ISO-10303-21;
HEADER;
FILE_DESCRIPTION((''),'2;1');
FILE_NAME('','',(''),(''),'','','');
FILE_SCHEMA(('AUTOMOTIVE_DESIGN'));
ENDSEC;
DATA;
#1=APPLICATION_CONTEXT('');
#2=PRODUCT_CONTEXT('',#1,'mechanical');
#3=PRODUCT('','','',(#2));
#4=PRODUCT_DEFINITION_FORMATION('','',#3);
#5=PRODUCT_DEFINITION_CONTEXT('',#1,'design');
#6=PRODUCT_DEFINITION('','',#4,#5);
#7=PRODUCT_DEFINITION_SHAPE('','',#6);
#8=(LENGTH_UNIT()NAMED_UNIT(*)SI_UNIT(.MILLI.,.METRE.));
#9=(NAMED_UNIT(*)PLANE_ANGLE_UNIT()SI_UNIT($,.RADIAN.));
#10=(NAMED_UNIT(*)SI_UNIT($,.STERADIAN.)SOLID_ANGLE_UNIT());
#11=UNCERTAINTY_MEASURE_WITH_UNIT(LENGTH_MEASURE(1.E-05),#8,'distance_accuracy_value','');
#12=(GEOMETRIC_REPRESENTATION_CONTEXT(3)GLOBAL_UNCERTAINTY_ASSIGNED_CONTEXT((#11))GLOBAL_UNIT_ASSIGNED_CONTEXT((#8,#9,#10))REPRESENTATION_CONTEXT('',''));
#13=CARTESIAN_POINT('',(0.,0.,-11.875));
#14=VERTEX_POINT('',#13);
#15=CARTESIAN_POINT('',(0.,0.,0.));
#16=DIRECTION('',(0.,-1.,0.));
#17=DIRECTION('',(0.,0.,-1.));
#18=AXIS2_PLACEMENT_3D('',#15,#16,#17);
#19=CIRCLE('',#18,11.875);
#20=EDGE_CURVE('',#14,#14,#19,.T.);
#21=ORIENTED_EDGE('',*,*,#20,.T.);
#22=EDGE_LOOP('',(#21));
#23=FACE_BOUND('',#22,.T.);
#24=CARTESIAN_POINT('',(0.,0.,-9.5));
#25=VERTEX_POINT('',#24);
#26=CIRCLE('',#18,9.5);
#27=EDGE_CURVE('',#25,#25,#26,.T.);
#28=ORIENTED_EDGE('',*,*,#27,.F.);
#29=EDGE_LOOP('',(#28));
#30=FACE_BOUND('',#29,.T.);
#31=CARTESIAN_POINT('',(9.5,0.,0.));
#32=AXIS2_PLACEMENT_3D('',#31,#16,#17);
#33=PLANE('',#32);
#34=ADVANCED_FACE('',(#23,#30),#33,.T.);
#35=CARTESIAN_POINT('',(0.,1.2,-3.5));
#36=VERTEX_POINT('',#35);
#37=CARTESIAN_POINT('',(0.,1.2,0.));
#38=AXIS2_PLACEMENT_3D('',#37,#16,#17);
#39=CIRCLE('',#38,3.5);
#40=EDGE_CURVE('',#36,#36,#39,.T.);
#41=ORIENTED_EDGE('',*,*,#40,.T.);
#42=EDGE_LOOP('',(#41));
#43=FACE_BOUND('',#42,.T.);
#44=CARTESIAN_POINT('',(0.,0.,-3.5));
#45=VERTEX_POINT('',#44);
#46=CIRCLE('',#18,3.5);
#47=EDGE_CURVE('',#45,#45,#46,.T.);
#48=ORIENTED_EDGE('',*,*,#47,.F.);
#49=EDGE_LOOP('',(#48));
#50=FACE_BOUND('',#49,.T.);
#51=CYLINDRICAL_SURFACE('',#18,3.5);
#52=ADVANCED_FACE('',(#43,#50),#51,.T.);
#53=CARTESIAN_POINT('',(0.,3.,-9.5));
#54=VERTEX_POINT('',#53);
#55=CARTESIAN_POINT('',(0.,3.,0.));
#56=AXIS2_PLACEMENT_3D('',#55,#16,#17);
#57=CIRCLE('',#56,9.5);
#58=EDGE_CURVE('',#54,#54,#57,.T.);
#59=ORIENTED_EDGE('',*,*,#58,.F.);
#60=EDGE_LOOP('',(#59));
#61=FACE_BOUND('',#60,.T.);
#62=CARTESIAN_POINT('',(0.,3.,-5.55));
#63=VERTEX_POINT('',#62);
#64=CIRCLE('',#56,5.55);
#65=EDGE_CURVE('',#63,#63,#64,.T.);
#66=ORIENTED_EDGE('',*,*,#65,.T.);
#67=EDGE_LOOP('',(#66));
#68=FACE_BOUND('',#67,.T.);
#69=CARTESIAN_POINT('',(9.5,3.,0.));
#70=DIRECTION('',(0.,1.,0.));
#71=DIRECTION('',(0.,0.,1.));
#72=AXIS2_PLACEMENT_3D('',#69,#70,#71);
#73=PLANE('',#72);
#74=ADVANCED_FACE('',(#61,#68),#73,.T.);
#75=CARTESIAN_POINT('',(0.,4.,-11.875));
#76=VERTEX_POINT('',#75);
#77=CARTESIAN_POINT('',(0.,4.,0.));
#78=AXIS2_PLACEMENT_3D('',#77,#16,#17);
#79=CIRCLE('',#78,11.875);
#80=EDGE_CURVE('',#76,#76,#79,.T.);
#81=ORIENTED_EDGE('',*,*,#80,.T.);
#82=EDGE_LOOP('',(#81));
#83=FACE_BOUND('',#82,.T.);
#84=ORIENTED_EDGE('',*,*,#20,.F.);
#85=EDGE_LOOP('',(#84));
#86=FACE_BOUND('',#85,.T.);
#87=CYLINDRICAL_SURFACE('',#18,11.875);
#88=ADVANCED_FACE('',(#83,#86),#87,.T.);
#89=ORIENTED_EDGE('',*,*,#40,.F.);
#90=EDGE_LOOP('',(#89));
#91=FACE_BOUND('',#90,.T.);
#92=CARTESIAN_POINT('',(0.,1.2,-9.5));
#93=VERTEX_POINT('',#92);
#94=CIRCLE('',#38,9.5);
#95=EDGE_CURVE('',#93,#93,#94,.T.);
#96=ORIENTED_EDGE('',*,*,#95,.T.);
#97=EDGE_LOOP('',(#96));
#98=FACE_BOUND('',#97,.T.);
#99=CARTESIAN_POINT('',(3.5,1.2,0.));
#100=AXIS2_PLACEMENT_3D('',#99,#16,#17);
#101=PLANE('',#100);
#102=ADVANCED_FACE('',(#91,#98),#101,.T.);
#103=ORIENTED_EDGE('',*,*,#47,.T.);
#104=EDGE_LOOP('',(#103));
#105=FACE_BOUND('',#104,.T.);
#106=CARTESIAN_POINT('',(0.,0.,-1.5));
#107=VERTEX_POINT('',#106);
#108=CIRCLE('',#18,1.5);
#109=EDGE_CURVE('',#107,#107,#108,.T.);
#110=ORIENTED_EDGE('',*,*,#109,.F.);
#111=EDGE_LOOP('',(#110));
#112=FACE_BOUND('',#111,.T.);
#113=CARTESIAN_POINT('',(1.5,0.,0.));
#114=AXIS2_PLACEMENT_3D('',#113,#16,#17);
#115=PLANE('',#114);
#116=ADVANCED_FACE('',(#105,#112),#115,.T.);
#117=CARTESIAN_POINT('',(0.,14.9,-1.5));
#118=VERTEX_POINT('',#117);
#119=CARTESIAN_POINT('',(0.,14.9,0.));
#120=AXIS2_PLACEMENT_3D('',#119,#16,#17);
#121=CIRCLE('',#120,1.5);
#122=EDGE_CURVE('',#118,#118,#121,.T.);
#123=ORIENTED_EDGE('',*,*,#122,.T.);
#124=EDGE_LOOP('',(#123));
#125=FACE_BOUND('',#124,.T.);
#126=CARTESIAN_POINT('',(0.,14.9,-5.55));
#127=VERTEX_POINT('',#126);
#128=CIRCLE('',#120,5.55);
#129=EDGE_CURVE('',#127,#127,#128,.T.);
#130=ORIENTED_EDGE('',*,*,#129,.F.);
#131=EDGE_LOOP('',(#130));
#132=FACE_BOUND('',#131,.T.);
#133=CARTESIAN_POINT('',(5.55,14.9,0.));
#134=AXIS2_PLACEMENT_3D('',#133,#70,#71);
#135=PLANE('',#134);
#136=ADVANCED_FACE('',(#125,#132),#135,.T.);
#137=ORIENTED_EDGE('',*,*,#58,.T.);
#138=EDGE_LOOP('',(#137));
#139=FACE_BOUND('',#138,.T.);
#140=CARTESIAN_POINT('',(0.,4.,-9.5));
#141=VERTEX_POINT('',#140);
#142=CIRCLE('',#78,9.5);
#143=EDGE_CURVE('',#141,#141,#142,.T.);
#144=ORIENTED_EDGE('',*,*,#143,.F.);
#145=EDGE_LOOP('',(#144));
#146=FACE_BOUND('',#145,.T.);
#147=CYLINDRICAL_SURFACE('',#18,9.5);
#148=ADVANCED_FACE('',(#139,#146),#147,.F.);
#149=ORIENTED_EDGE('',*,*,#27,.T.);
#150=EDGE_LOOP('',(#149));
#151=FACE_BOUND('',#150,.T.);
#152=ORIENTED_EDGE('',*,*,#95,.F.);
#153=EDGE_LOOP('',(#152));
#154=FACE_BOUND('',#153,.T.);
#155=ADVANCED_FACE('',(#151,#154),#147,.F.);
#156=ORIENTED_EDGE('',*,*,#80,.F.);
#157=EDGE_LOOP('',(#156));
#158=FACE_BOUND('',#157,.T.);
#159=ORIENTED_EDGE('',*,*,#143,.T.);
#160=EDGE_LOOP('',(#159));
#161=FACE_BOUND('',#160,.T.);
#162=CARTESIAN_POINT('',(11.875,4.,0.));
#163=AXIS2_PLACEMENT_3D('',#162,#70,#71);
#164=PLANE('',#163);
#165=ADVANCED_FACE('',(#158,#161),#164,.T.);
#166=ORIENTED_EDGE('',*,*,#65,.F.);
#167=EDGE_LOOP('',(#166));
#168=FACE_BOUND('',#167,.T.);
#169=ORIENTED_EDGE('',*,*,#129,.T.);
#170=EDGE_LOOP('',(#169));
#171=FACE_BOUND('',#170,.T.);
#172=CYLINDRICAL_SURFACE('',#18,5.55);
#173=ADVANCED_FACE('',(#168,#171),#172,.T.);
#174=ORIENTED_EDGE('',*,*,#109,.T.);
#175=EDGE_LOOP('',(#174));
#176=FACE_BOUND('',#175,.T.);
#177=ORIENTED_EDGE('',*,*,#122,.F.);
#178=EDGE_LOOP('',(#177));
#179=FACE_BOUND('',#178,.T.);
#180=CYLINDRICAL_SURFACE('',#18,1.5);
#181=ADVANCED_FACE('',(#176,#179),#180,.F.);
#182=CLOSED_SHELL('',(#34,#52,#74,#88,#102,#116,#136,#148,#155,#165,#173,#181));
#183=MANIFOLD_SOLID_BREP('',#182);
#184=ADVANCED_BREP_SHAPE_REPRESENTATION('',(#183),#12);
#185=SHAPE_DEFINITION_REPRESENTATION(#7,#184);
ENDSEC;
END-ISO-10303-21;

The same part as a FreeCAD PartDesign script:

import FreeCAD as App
import Part
import Sketcher

V = App.Vector


def add_polygon(sketch, points):
    """Adds a closed chain of lines whose ends are joined by coincident constraints."""
    first, n = sketch.GeometryCount, len(points)
    for a, b in zip(points, points[1:] + points[:1]):
        sketch.addGeometry(Part.LineSegment(App.Vector(*a, 0), App.Vector(*b, 0)), False)
    for i in range(n):
        sketch.addConstraint(Sketcher.Constraint("Coincident", first + i, 2, first + (i + 1) % n, 1))

doc = App.newDocument("Part")
params = doc.addObject("Spreadsheet::Sheet", "Params")
for row, (alias, value) in enumerate([
    ("sketch1_width", "2 mm"),
    ("sketch1_width2", "6 mm"),
    ("sketch1_height", "4 mm"),
    ("sketch1_height2", "1 mm"),
    ("sketch1_height3", "14.9 mm"),
    ("revolution_angle", "360 deg"),
], start=1):
    params.set(f"A{row}", alias)
    params.set(f"B{row}", "=" + value)
    params.setAlias(f"B{row}", alias)

body = doc.addObject("PartDesign::Body", "Body")

# Sketch on XY plane
sketch1 = body.newObject("Sketcher::SketchObject", "Sketch")
sketch1.AttachmentSupport = (doc.getObject("XY_Plane"), [""])
sketch1.MapMode = "FlatFace"
add_polygon(sketch1, [(1.5, 14.9), (1.5, 0), (3.5, 0), (3.5, 1.2), (9.5, 1.2), (9.5, 0), (11.875, 0), (11.875, 4), (9.5, 4), (9.5, 3), (5.55, 3), (5.55, 14.9)])  # lines 0-11
sketch1.addConstraint([
    Sketcher.Constraint("Vertical", 0),
    Sketcher.Constraint("Horizontal", 1),
    Sketcher.Constraint("Vertical", 2),
    Sketcher.Constraint("Horizontal", 3),
    Sketcher.Constraint("Vertical", 4),
    Sketcher.Constraint("Horizontal", 5),
    Sketcher.Constraint("Vertical", 6),
    Sketcher.Constraint("Horizontal", 7),
    Sketcher.Constraint("Vertical", 8),
    Sketcher.Constraint("Horizontal", 9),
    Sketcher.Constraint("Vertical", 10),
    Sketcher.Constraint("Horizontal", 11),
    Sketcher.Constraint("PointOnObject", 0, 2, -1),
    Sketcher.Constraint("PointOnObject", 4, 2, -1),
    Sketcher.Constraint("Vertical", 4, 2, 7, 2),
    Sketcher.Constraint("DistanceX", 1, 1, 1, 2, 2.0),
    Sketcher.Constraint("DistanceX", 3, 1, 3, 2, 6.0),
    Sketcher.Constraint("DistanceY", 6, 1, 6, 2, 4.0),
    Sketcher.Constraint("DistanceY", 8, 2, 8, 1, 1.0),
    Sketcher.Constraint("DistanceY", 0, 2, 0, 1, 14.9),
    Sketcher.Constraint("DistanceY", 2, 1, 2, 2, 1.2),
    Sketcher.Constraint("DistanceX", 9, 2, 9, 1, 3.95),
    Sketcher.Constraint("DistanceX", -1, 1, 0, 2, 1.5),
    Sketcher.Constraint("DistanceX", 5, 1, 5, 2, 2.375),
])
sketch1.setExpression("Constraints[27]", "Params.sketch1_width")
sketch1.setExpression("Constraints[28]", "Params.sketch1_width2")
sketch1.setExpression("Constraints[29]", "Params.sketch1_height")
sketch1.setExpression("Constraints[30]", "Params.sketch1_height2")
sketch1.setExpression("Constraints[31]", "Params.sketch1_height3")
revolution = body.newObject("PartDesign::Revolution", "Revolution")
revolution.Profile = sketch1
revolution.ReferenceAxis = (sketch1, ["V_Axis"])
revolution.setExpression("Angle", "Params.revolution_angle")

doc.recompute()
